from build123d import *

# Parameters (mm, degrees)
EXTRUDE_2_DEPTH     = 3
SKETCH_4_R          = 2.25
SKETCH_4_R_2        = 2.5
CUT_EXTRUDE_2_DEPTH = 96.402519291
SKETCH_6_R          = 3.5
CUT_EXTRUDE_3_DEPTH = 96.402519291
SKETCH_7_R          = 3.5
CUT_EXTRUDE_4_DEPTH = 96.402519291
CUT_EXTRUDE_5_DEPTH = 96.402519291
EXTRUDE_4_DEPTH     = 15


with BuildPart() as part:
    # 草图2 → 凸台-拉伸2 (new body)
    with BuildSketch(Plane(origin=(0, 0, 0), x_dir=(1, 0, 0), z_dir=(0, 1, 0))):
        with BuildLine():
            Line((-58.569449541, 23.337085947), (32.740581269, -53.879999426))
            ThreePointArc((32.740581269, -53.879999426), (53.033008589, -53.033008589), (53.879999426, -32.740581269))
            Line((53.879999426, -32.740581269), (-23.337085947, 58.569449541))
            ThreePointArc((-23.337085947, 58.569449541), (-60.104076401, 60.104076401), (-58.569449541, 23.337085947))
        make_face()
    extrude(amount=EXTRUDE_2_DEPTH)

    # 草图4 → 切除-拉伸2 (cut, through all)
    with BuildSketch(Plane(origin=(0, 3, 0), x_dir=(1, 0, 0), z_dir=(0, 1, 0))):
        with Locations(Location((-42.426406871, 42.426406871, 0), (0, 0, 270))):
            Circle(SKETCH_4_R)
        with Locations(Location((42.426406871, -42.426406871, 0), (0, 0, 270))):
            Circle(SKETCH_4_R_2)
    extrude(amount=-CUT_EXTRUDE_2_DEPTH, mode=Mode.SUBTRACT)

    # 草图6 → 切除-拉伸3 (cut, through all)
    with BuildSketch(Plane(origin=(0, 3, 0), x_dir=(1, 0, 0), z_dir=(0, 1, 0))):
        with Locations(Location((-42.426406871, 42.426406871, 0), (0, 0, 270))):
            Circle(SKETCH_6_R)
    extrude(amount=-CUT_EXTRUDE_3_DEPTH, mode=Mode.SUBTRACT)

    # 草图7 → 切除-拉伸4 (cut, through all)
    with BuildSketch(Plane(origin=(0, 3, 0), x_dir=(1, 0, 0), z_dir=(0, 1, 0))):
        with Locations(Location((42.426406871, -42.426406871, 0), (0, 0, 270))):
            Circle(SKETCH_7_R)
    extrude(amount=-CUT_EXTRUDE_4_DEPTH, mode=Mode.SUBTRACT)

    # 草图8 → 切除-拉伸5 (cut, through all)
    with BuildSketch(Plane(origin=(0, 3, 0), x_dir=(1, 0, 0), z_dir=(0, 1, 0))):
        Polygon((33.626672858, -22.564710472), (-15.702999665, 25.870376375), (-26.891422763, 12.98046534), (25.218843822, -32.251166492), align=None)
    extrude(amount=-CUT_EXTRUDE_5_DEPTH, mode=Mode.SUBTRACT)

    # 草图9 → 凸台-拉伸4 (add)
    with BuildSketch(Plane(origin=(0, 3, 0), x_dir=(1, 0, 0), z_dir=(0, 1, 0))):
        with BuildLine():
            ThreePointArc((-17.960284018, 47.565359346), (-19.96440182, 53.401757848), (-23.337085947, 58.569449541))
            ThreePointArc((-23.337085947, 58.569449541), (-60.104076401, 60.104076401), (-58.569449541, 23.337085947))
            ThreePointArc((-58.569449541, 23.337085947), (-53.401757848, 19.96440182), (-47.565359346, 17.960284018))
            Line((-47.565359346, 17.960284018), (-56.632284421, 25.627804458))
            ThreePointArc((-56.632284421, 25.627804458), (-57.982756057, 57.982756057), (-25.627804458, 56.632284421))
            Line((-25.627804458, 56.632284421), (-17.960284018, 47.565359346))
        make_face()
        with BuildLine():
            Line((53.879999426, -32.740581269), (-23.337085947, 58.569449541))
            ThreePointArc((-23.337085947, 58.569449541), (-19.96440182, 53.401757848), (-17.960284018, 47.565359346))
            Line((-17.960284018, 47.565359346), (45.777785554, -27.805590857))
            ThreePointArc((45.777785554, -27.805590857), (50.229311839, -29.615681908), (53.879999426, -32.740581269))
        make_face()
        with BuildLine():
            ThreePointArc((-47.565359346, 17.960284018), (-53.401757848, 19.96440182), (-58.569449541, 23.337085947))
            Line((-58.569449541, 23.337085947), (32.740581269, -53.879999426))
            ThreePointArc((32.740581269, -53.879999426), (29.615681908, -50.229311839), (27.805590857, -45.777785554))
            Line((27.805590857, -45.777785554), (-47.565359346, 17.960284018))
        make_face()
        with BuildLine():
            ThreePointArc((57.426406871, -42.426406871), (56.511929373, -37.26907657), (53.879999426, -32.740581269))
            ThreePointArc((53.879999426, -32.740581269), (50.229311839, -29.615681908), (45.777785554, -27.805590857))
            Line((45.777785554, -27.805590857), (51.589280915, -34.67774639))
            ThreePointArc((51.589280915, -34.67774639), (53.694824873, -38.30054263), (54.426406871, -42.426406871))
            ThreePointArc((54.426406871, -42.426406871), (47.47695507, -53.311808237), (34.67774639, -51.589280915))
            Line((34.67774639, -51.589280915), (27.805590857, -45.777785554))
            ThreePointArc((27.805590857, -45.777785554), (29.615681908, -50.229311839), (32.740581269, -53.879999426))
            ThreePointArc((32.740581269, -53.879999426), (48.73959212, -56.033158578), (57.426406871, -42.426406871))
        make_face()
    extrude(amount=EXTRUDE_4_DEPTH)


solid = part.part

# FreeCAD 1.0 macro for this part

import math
import FreeCAD as App
import Part
import Sketcher
from FreeCAD import Vector

doc = App.newDocument("Part")
body = doc.addObject("PartDesign::Body", "Body")

sketch1 = doc.addObject("Sketcher::SketchObject", "Sketch")
body.addObject(sketch1)
sketch1.AttachmentSupport = (doc.XZ_Plane, [""])
sketch1.MapMode = "FlatFace"
sketch1.addGeometry([
    Part.LineSegment(Vector(-59, -23, 0), Vector(33, 54, 0)),
    Part.ArcOfCircle(Part.Circle(Vector(42, 42, 0), Vector(0, 0, 1), 15), math.radians(-40), math.radians(130)),
    Part.LineSegment(Vector(54, 33, 0), Vector(-23, -59, 0)),
    Part.ArcOfCircle(Part.Circle(Vector(-42, -42, 0), Vector(0, 0, 1), 25), math.radians(130), math.radians(320)),
], False)
sketch1.addConstraint([
    Sketcher.Constraint("Tangent", 0, 2, 1, 2),
    Sketcher.Constraint("Tangent", 1, 1, 2, 1),
    Sketcher.Constraint("Tangent", 2, 2, 3, 2),
    Sketcher.Constraint("Tangent", 3, 1, 0, 1),
    Sketcher.Constraint("Symmetric", 1, 3, 3, 3, -1, 1),
    Sketcher.Constraint("Radius", 1, 15.0),
    Sketcher.Constraint("Radius", 3, 25.0),
    Sketcher.Constraint("DistanceY", -1, 1, 0, 2, 53.879999),
    Sketcher.Constraint("DistanceX", -1, 1, 1, 1, 53.879999),
])
pad1 = doc.addObject("PartDesign::Pad", "Pad")
body.addObject(pad1)
pad1.Profile = sketch1
pad1.Length = 3
pad1.Reversed = True

sketch2 = doc.addObject("Sketcher::SketchObject", "Sketch001")
body.addObject(sketch2)
sketch2.AttachmentSupport = (doc.XZ_Plane, [""])
sketch2.MapMode = "FlatFace"
sketch2.AttachmentOffset = App.Placement(Vector(0, 0, -3), App.Rotation())
sketch2.addGeometry([
    Part.Circle(Vector(-42.4, -42.4, 0), Vector(0, 0, 1), 2.2),
    Part.Circle(Vector(42.4, 42.4, 0), Vector(0, 0, 1), 2.5),
], False)
sketch2.addConstraint([
    Sketcher.Constraint("Symmetric", 0, 3, 1, 3, -1, 1),
    Sketcher.Constraint("Diameter", 1, 5.0),
    Sketcher.Constraint("Diameter", 0, 4.5),
    Sketcher.Constraint("DistanceX", 0, 3, -1, 1, 42.426407),
    Sketcher.Constraint("DistanceY", 0, 3, -1, 1, 42.426407),
])
pocket1 = doc.addObject("PartDesign::Pocket", "Pocket")
body.addObject(pocket1)
pocket1.Profile = sketch2
pocket1.Type = "ThroughAll"
pocket1.Reversed = True

sketch3 = doc.addObject("Sketcher::SketchObject", "Sketch002")
body.addObject(sketch3)
sketch3.AttachmentSupport = (doc.XZ_Plane, [""])
sketch3.MapMode = "FlatFace"
sketch3.AttachmentOffset = App.Placement(Vector(0, 0, -3), App.Rotation())
sketch3.addGeometry(Part.Circle(Vector(-42.4, -42.4, 0), Vector(0, 0, 1), 3.5), False)
sketch3.addConstraint([
    Sketcher.Constraint("Diameter", 0, 7.0),
    Sketcher.Constraint("DistanceX", 0, 3, -1, 1, 42.426407),
    Sketcher.Constraint("DistanceY", 0, 3, -1, 1, 42.426407),
])
pocket2 = doc.addObject("PartDesign::Pocket", "Pocket001")
body.addObject(pocket2)
pocket2.Profile = sketch3
pocket2.Type = "ThroughAll"
pocket2.Reversed = True

sketch4 = doc.addObject("Sketcher::SketchObject", "Sketch003")
body.addObject(sketch4)
sketch4.AttachmentSupport = (doc.XZ_Plane, [""])
sketch4.MapMode = "FlatFace"
sketch4.AttachmentOffset = App.Placement(Vector(0, 0, -3), App.Rotation())
sketch4.addGeometry(Part.Circle(Vector(42.4, 42.4, 0), Vector(0, 0, 1), 3.5), False)
sketch4.addConstraint([
    Sketcher.Constraint("Diameter", 0, 7.0),
    Sketcher.Constraint("DistanceX", -1, 1, 0, 3, 42.426407),
    Sketcher.Constraint("DistanceY", -1, 1, 0, 3, 42.426407),
])
pocket3 = doc.addObject("PartDesign::Pocket", "Pocket002")
body.addObject(pocket3)
pocket3.Profile = sketch4
pocket3.Type = "ThroughAll"
pocket3.Reversed = True

sketch5 = doc.addObject("Sketcher::SketchObject", "Sketch004")
body.addObject(sketch5)
sketch5.AttachmentSupport = (doc.XZ_Plane, [""])
sketch5.MapMode = "FlatFace"
sketch5.AttachmentOffset = App.Placement(Vector(0, 0, -3), App.Rotation())
sketch5.addGeometry([
    Part.LineSegment(Vector(34, 23, 0), Vector(-16, -26, 0)),
    Part.LineSegment(Vector(-16, -26, 0), Vector(-27, -13, 0)),
    Part.LineSegment(Vector(-27, -13, 0), Vector(25, 32, 0)),
    Part.LineSegment(Vector(25, 32, 0), Vector(34, 23, 0)),
], False)
sketch5.addConstraint([
    Sketcher.Constraint("Coincident", 0, 2, 1, 1),
    Sketcher.Constraint("Coincident", 1, 2, 2, 1),
    Sketcher.Constraint("Coincident", 2, 2, 3, 1),
    Sketcher.Constraint("Coincident", 3, 2, 0, 1),
    Sketcher.Constraint("Perpendicular", 1, 2),
    Sketcher.Constraint("Perpendicular", 2, 3),
    Sketcher.Constraint("DistanceX", 0, 2, -1, 1, 15.703),
    Sketcher.Constraint("Distance", 0, 69.133018),
    Sketcher.Constraint("Distance", 1, 17.06841),
    Sketcher.Constraint("DistanceY", -1, 1, 3, 2, 22.56471),
    Sketcher.Constraint("DistanceY", 0, 2, 1, 2, 12.889911),
    Sketcher.Constraint("DistanceY", 1, 2, 2, 2, 45.231632),
])
pocket4 = doc.addObject("PartDesign::Pocket", "Pocket003")
body.addObject(pocket4)
pocket4.Profile = sketch5
pocket4.Type = "ThroughAll"
pocket4.Reversed = True

sketch6 = doc.addObject("Sketcher::SketchObject", "Sketch005")
body.addObject(sketch6)
sketch6.AttachmentSupport = (doc.XZ_Plane, [""])
sketch6.MapMode = "FlatFace"
sketch6.AttachmentOffset = App.Placement(Vector(0, 0, -3), App.Rotation())
sketch6.addGeometry([
    Part.ArcOfCircle(Part.Circle(Vector(-42, -42, 0), Vector(0, 0, 1), 25), math.radians(130), math.radians(320)),
    Part.LineSegment(Vector(-59, -23, 0), Vector(33, 54, 0)),
    Part.ArcOfCircle(Part.Circle(Vector(42, 42, 0), Vector(0, 0, 1), 15), math.radians(0), math.radians(130)),
    Part.ArcOfCircle(Part.Circle(Vector(42, 42, 0), Vector(0, 0, 1), 15), math.radians(-40), math.radians(0)),
    Part.LineSegment(Vector(54, 33, 0), Vector(-23, -59, 0)),
    Part.LineSegment(Vector(28, 46, 0), Vector(-48, -18, 0)),
    Part.LineSegment(Vector(-48, -18, 0), Vector(-57, -26, 0)),
    Part.ArcOfCircle(Part.Circle(Vector(-42, -42, 0), Vector(0, 0, 1), 22), math.radians(130), math.radians(320)),
    Part.LineSegment(Vector(-26, -57, 0), Vector(-18, -48, 0)),
    Part.LineSegment(Vector(-18, -48, 0), Vector(46, 28, 0)),
    Part.LineSegment(Vector(46, 28, 0), Vector(52, 35, 0)),
    Part.ArcOfCircle(Part.Circle(Vector(42, 42, 0), Vector(0, 0, 1), 12), math.radians(-40), math.radians(0)),
    Part.ArcOfCircle(Part.Circle(Vector(42, 42, 0), Vector(0, 0, 1), 12), math.radians(0), math.radians(130)),
    Part.LineSegment(Vector(35, 52, 0), Vector(28, 46, 0)),
], False)
sketch6.addConstraint([
    Sketcher.Constraint("Tangent", 0, 1, 1, 1),
    Sketcher.Constraint("Tangent", 1, 2, 2, 2),
    Sketcher.Constraint("Tangent", 2, 1, 3, 2),
    Sketcher.Constraint("Tangent", 3, 1, 4, 1),
    Sketcher.Constraint("Tangent", 4, 2, 0, 2),
    Sketcher.Constraint("Coincident", 5, 2, 6, 1),
    Sketcher.Constraint("Tangent", 6, 2, 7, 1),
    Sketcher.Constraint("Tangent", 7, 2, 8, 1),
    Sketcher.Constraint("Coincident", 8, 2, 9, 1),
    Sketcher.Constraint("Coincident", 9, 2, 10, 1),
    Sketcher.Constraint("Tangent", 10, 2, 11, 1),
    Sketcher.Constraint("Tangent", 11, 2, 12, 1),
    Sketcher.Constraint("Tangent", 12, 2, 13, 1),
    Sketcher.Constraint("Coincident", 13, 2, 5, 1),
    Sketcher.Constraint("Coincident", 7, 3, 0, 3),
    Sketcher.Constraint("Coincident", 11, 3, 2, 3),
    Sketcher.Constraint("Equal", 2, 3),
    Sketcher.Constraint("Equal", 11, 12),
    Sketcher.Constraint("Symmetric", 0, 3, 2, 3, -1, 1),
    Sketcher.Constraint("Parallel", 1, 5),
    Sketcher.Constraint("Parallel", 5, 6),
    Sketcher.Constraint("Parallel", 4, 8),
    Sketcher.Constraint("Parallel", 8, 9),
    Sketcher.Constraint("Parallel", 9, 10),
    Sketcher.Constraint("Horizontal", 12, 3, 2, 1),
    Sketcher.Constraint("Horizontal", 2, 1, 11, 2),
    Sketcher.Constraint("Equal", 6, 8),
    Sketcher.Constraint("Equal", 5, 9),
    Sketcher.Constraint("Radius", 0, 25.0),
    Sketcher.Constraint("Radius", 2, 15.0),
    Sketcher.Constraint("Radius", 7, 22.0),
    Sketcher.Constraint("Distance", 10, 9.0),
    Sketcher.Constraint("DistanceY", -1, 1, 1, 2, 53.879999),
    Sketcher.Constraint("DistanceX", -1, 1, 3, 1, 53.879999),
    Sketcher.Constraint("DistanceY", 7, 2, 5, 2, 38.672),
])
pad2 = doc.addObject("PartDesign::Pad", "Pad001")
body.addObject(pad2)
pad2.Profile = sketch6
pad2.Length = 15
pad2.Reversed = True

doc.recompute()
